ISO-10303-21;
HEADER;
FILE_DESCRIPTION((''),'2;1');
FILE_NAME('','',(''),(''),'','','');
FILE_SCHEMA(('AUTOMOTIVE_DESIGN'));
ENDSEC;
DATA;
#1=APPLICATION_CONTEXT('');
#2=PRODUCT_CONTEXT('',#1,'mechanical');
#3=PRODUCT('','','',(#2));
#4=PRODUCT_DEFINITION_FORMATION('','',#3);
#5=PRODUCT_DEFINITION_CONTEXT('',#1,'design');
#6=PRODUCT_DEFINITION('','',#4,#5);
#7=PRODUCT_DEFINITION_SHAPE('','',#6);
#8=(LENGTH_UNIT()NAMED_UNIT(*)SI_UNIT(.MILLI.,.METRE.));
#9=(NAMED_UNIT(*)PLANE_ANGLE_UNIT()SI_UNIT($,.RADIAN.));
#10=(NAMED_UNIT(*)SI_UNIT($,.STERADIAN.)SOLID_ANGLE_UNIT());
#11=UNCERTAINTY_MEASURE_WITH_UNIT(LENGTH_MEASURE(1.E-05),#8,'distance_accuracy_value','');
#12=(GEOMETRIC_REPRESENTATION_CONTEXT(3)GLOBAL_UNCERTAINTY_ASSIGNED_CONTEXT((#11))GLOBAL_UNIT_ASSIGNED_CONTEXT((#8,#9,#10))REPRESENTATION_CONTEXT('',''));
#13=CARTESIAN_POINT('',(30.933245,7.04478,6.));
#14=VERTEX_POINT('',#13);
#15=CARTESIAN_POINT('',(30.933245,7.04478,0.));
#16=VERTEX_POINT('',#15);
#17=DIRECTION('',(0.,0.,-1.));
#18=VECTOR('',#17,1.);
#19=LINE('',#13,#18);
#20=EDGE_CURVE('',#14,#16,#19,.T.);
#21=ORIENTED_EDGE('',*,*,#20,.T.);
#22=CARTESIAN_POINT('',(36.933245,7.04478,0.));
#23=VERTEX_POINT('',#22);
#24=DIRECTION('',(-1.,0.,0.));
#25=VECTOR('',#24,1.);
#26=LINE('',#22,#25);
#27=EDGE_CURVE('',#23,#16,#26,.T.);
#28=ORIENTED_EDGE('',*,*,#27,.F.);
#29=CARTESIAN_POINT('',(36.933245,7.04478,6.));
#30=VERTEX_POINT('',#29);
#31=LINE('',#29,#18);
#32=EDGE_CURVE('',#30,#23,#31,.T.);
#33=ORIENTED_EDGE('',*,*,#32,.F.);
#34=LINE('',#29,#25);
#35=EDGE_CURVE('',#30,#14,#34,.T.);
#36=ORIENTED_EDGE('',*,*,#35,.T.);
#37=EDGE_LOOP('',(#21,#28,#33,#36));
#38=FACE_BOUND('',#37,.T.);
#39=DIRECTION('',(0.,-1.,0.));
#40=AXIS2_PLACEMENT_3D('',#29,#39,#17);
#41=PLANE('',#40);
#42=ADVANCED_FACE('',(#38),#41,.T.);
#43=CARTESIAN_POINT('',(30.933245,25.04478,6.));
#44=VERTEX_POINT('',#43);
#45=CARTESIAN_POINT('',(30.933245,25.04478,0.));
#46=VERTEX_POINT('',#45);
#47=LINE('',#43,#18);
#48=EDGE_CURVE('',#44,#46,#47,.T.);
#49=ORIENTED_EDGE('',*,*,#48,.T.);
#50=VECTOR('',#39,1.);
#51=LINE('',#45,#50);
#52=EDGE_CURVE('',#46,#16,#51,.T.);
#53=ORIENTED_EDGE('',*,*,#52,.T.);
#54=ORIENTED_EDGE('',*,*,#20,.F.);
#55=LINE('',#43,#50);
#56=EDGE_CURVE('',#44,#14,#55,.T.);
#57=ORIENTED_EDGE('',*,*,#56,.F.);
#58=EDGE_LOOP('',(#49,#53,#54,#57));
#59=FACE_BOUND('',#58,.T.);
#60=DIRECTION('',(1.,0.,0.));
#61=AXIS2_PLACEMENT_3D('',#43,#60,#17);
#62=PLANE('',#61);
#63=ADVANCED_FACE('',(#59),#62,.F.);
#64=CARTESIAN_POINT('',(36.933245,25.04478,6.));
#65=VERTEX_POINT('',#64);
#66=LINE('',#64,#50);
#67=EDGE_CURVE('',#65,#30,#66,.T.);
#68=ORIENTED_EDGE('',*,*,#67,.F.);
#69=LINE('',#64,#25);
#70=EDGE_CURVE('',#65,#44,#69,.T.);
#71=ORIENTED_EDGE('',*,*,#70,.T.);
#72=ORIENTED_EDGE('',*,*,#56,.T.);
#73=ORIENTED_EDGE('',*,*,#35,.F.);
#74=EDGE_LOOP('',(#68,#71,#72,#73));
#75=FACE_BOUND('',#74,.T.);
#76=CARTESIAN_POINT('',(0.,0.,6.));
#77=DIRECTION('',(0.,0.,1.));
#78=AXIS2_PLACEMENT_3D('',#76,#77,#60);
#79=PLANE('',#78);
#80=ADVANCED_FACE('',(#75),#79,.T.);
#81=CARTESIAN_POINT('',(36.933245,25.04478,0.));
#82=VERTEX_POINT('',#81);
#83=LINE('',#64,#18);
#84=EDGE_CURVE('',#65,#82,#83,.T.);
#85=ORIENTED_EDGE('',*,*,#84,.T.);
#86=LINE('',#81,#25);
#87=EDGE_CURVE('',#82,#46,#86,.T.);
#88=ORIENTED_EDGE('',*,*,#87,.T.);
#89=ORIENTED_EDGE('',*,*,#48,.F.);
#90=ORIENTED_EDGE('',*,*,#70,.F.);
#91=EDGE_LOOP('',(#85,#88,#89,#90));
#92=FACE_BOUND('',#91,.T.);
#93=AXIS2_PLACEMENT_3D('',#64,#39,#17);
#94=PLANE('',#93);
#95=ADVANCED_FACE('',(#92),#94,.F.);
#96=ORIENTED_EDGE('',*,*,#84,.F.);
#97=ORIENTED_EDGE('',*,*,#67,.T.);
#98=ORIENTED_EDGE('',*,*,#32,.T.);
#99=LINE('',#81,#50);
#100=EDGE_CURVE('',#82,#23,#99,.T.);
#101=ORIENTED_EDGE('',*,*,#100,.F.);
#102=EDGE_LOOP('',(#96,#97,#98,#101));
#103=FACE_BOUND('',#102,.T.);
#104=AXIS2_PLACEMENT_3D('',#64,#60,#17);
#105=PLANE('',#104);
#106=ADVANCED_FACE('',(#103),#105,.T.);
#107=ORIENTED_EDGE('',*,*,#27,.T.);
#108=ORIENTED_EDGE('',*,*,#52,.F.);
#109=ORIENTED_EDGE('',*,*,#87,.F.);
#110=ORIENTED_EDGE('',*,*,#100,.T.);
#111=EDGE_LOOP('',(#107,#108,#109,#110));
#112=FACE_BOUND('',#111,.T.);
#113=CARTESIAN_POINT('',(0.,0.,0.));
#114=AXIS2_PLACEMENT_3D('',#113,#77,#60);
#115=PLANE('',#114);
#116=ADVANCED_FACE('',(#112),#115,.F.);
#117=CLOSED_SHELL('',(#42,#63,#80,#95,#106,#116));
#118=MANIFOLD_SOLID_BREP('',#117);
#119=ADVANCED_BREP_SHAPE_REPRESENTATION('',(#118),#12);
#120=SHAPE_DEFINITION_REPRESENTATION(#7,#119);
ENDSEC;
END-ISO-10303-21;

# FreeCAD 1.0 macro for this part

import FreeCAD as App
import Part
import Sketcher
from FreeCAD import Vector

doc = App.newDocument("Part")
body = doc.addObject("PartDesign::Body", "Body")

# Sketch on XY plane
sketch1 = doc.addObject("Sketcher::SketchObject", "Sketch")
body.addObject(sketch1)
sketch1.AttachmentSupport = (doc.XY_Plane, [""])
sketch1.MapMode = "FlatFace"
sketch1.addGeometry(Part.LineSegment(Vector(31, 25, 0), Vector(31, 7, 0)), False)
sketch1.addGeometry(Part.LineSegment(Vector(31, 7, 0), Vector(37, 7, 0)), False)
sketch1.addGeometry(Part.LineSegment(Vector(37, 7, 0), Vector(37, 25, 0)), False)
sketch1.addGeometry(Part.LineSegment(Vector(37, 25, 0), Vector(31, 25, 0)), False)
sketch1.addConstraint(Sketcher.Constraint("Coincident", 0, 2, 1, 1))
sketch1.addConstraint(Sketcher.Constraint("Coincident", 1, 2, 2, 1))
sketch1.addConstraint(Sketcher.Constraint("Coincident", 2, 2, 3, 1))
sketch1.addConstraint(Sketcher.Constraint("Coincident", 3, 2, 0, 1))
sketch1.addConstraint(Sketcher.Constraint("Vertical", 0))
sketch1.addConstraint(Sketcher.Constraint("Horizontal", 1))
sketch1.addConstraint(Sketcher.Constraint("Vertical", 2))
sketch1.addConstraint(Sketcher.Constraint("Horizontal", 3))
sketch1.addConstraint(Sketcher.Constraint("DistanceX", 1, 1, 1, 2, 6.0))
sketch1.addConstraint(Sketcher.Constraint("DistanceY", 0, 2, 0, 1, 18.0))
sketch1.addConstraint(Sketcher.Constraint("DistanceY", -1, 1, 0, 2, 7.04478))
sketch1.addConstraint(Sketcher.Constraint("DistanceX", -1, 1, 0, 2, 30.933245))
pad1 = doc.addObject("PartDesign::Pad", "Pad")
body.addObject(pad1)
pad1.Profile = sketch1
pad1.Length = 6

doc.recompute()
